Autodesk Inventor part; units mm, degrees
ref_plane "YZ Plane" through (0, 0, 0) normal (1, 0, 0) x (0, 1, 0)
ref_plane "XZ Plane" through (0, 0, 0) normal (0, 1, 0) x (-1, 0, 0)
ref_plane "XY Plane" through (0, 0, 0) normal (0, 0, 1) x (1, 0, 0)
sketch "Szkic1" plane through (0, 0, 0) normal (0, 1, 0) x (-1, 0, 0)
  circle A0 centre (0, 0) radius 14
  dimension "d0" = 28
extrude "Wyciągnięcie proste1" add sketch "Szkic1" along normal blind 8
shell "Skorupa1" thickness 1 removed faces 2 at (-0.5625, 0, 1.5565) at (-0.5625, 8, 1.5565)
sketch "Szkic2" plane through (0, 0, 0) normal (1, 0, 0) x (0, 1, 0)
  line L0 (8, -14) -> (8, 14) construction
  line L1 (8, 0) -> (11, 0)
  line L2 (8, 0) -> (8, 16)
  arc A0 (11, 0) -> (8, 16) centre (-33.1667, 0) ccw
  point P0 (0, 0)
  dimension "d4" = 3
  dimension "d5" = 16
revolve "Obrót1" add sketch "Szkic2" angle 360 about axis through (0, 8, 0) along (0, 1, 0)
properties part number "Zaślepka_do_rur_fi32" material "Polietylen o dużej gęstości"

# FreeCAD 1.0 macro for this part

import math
import FreeCAD as App
import Part
import Sketcher
from FreeCAD import Vector
Q = App.Units.Quantity


def faces_at(feature, points):
    """Names of the faces that lie closest to the given points."""
    faces = feature.Shape.Faces
    near = lambda p: min(range(len(faces)), key=lambda i: faces[i].distToShape(Part.Vertex(*p))[0])
    return sorted({f"Face{near(p) + 1}" for p in points})

doc = App.newDocument("Part")
body = doc.addObject("PartDesign::Body", "Body")

# Sketch on XZ plane
sketch1 = body.newObject("Sketcher::SketchObject", "Sketch")
sketch1.AttachmentSupport = (doc.getObject("XZ_Plane"), [""])
sketch1.MapMode = "FlatFace"
sketch1.addGeometry(Part.Circle(Vector(0, 0, 0), Vector(0, 0, 1), 14), False)
sketch1.addConstraint(Sketcher.Constraint("Coincident", 0, 3, -1, 1))
sketch1.addConstraint(Sketcher.Constraint("Diameter", 0, Q("28 mm")))
pad1 = body.newObject("PartDesign::Pad", "Pad")
pad1.Profile = sketch1
pad1.Length = 8
pad1.Reversed = True
doc.recompute()

thickness = body.newObject("PartDesign::Thickness", "Thickness")
thickness.Base = (pad1, faces_at(pad1, [(-0.562, 0, 1.556), (-0.562, 8, 1.556)]))
thickness.Value = 1
thickness.Reversed = True
thickness.Join = "Intersection"

# Sketch on YZ plane
sketch2 = body.newObject("Sketcher::SketchObject", "Sketch001")
sketch2.AttachmentSupport = (doc.getObject("YZ_Plane"), [""])
sketch2.MapMode = "FlatFace"
sketch2.addGeometry(Part.LineSegment(Vector(8, 16, 0), Vector(8, 0, 0)), False)
sketch2.addGeometry(Part.LineSegment(Vector(8, 0, 0), Vector(11, 0, 0)), False)
sketch2.addGeometry(Part.ArcOfCircle(Part.Circle(Vector(-33.2, 0, 0), Vector(0, 0, 1), 44.2), math.radians(0), math.radians(21)), False)
sketch2.addConstraint(Sketcher.Constraint("Coincident", 0, 2, 1, 1))
sketch2.addConstraint(Sketcher.Constraint("Coincident", 1, 2, 2, 1))
sketch2.addConstraint(Sketcher.Constraint("Coincident", 2, 2, 0, 1))
sketch2.addConstraint(Sketcher.Constraint("Vertical", 0))
sketch2.addConstraint(Sketcher.Constraint("Horizontal", 1))
sketch2.addConstraint(Sketcher.Constraint("PointOnObject", 2, 3, -1))
sketch2.addConstraint(Sketcher.Constraint("PointOnObject", 0, 2, -1))
sketch2.addConstraint(Sketcher.Constraint("DistanceX", 1, 1, 1, 2, Q("3 mm")))
sketch2.addConstraint(Sketcher.Constraint("DistanceY", 0, 2, 0, 1, Q("16 mm")))
sketch2.addConstraint(Sketcher.Constraint("DistanceX", -1, 1, 0, 2, Q("8 mm")))
revolution = body.newObject("PartDesign::Revolution", "Revolution")
revolution.Profile = sketch2
revolution.ReferenceAxis = (sketch2, ["H_Axis"])
revolution.Angle = 360

doc.recompute()
